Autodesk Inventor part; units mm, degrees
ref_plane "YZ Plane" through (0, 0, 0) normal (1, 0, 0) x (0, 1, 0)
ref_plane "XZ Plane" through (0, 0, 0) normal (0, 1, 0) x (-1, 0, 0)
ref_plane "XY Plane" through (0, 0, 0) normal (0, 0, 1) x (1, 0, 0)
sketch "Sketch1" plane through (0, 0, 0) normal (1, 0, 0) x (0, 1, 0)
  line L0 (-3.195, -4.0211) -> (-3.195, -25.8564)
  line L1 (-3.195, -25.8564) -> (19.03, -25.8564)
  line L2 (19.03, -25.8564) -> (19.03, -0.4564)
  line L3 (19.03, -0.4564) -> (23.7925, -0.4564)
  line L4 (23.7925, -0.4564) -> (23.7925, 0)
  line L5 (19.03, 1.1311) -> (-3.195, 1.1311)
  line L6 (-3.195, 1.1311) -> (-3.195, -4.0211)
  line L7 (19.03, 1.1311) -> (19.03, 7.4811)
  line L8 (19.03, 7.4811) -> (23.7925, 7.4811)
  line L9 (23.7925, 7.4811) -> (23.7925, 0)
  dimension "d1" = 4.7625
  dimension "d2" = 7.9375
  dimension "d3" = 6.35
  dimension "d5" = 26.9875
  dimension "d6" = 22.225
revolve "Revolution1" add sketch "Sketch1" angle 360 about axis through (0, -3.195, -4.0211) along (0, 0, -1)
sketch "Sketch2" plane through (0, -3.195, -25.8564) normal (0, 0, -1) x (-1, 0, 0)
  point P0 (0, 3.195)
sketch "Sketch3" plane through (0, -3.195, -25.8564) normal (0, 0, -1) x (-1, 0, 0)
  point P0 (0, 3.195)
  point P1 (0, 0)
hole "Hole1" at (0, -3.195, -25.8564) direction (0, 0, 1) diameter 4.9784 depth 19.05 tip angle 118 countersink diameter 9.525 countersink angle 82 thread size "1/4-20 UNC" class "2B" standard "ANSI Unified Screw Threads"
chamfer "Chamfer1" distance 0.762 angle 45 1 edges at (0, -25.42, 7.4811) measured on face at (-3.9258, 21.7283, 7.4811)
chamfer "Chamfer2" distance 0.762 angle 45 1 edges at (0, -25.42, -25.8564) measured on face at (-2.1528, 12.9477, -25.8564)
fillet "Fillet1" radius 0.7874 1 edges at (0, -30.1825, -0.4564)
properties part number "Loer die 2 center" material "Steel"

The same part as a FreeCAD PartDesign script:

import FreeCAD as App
import Part
import Sketcher

V = App.Vector
Q = App.Units.Quantity


def edges_at(feature, points):
    """Names of the edges that pass closest to the given points."""
    edges = feature.Shape.Edges
    near = lambda p: min(range(len(edges)), key=lambda i: edges[i].distToShape(Part.Vertex(*p))[0])
    return sorted({f"Edge{near(p) + 1}" for p in points})

doc = App.newDocument("Part")
params = doc.addObject("Spreadsheet::Sheet", "Params")
for row, (alias, value) in enumerate([
    ("sketch1_height", "0.25 in"),
    ("sketch1_width", "0.875 in"),
    ("sketch1_width2", "0.1875 in"),
    ("sketch1_height2", "1.0625 in"),
    ("sketch1_height3", "1 in"),
    ("revolution_angle", "360 deg"),
    ("sketch2_diameter", "0.196 in"),
    ("hole_diameter", "0.196 in"),
    ("hole_depth", "0.75 in"),
    ("hole_csink_diameter", "0.375 in"),
    ("chamfer_size", "0.03 in"),
    ("chamfer2_size", "0.03 in"),
    ("fillet_radius", "0.031 in"),
], start=1):
    params.set(f"A{row}", alias)
    params.set(f"B{row}", "=" + value)
    params.setAlias(f"B{row}", alias)

body = doc.addObject("PartDesign::Body", "Body")

sketch1 = body.newObject("Sketcher::SketchObject", "Sketch")
sketch1.AttachmentSupport = (doc.getObject("YZ_Plane"), [""])
sketch1.MapMode = "FlatFace"
sketch1.addGeometry(Part.LineSegment(V(-3.195, 1.1311, 0), V(-3.195, -25.8564, 0)), False)
sketch1.addGeometry(Part.LineSegment(V(-3.195, -25.8564, 0), V(19.03, -25.8564, 0)), False)
sketch1.addGeometry(Part.LineSegment(V(19.03, -25.8564, 0), V(19.03, -0.4564, 0)), False)
sketch1.addGeometry(Part.LineSegment(V(19.03, -0.4564, 0), V(23.7925, -0.4564, 0)), False)
sketch1.addGeometry(Part.LineSegment(V(23.7925, -0.4564, 0), V(23.7925, 7.4811, 0)), False)
sketch1.addGeometry(Part.LineSegment(V(23.7925, 7.4811, 0), V(19.03, 7.4811, 0)), False)
sketch1.addGeometry(Part.LineSegment(V(19.03, 7.4811, 0), V(19.03, 1.1311, 0)), False)
sketch1.addGeometry(Part.LineSegment(V(19.03, 1.1311, 0), V(-3.195, 1.1311, 0)), False)
sketch1.addGeometry(Part.LineSegment(V(-3.195, 7.4811, 0), V(-3.195, -25.8564, 0)), True)
sketch1.addConstraint(Sketcher.Constraint("Coincident", 0, 2, 1, 1))
sketch1.addConstraint(Sketcher.Constraint("Coincident", 1, 2, 2, 1))
sketch1.addConstraint(Sketcher.Constraint("Coincident", 2, 2, 3, 1))
sketch1.addConstraint(Sketcher.Constraint("Coincident", 3, 2, 4, 1))
sketch1.addConstraint(Sketcher.Constraint("Coincident", 4, 2, 5, 1))
sketch1.addConstraint(Sketcher.Constraint("Coincident", 5, 2, 6, 1))
sketch1.addConstraint(Sketcher.Constraint("Coincident", 6, 2, 7, 1))
sketch1.addConstraint(Sketcher.Constraint("Coincident", 7, 2, 0, 1))
sketch1.addConstraint(Sketcher.Constraint("Vertical", 0))
sketch1.addConstraint(Sketcher.Constraint("Horizontal", 1))
sketch1.addConstraint(Sketcher.Constraint("Vertical", 2))
sketch1.addConstraint(Sketcher.Constraint("Horizontal", 3))
sketch1.addConstraint(Sketcher.Constraint("Vertical", 4))
sketch1.addConstraint(Sketcher.Constraint("Horizontal", 5))
sketch1.addConstraint(Sketcher.Constraint("Vertical", 6))
sketch1.addConstraint(Sketcher.Constraint("Horizontal", 7))
sketch1.addConstraint(Sketcher.Constraint("Vertical", 8))
sketch1.addConstraint(Sketcher.Constraint("Coincident", 8, 2, 0, 2))
sketch1.addConstraint(Sketcher.Constraint("Horizontal", 5, 2, 8, 1))
sketch1.addConstraint(Sketcher.Constraint("Vertical", 2, 2, 5, 2))
sketch1.addConstraint(Sketcher.Constraint("DistanceY", 6, 2, 6, 1, Q("0.25 in")))
sketch1.addConstraint(Sketcher.Constraint("DistanceX", 1, 1, 1, 2, Q("0.875 in")))
sketch1.addConstraint(Sketcher.Constraint("DistanceX", 3, 1, 3, 2, Q("0.1875 in")))
sketch1.addConstraint(Sketcher.Constraint("DistanceY", 0, 2, 0, 1, Q("1.0625 in")))
sketch1.addConstraint(Sketcher.Constraint("DistanceY", 2, 1, 2, 2, Q("1 in")))
sketch1.addConstraint(Sketcher.Constraint("DistanceX", 0, 2, -1, 1, Q("3.195 mm")))
sketch1.addConstraint(Sketcher.Constraint("DistanceY", 0, 2, -1, 1, Q("25.8564 mm")))
sketch1.setExpression("Constraints[20]", "Params.sketch1_height")
sketch1.setExpression("Constraints[21]", "Params.sketch1_width")
sketch1.setExpression("Constraints[22]", "Params.sketch1_width2")
sketch1.setExpression("Constraints[23]", "Params.sketch1_height2")
sketch1.setExpression("Constraints[24]", "Params.sketch1_height3")
revolution = body.newObject("PartDesign::Revolution", "Revolution")
revolution.Profile = sketch1
revolution.ReferenceAxis = (sketch1, ["Axis0"])
revolution.setExpression("Angle", "Params.revolution_angle")

sketch2 = body.newObject("Sketcher::SketchObject", "Sketch001")
sketch2.AttachmentSupport = (doc.getObject("XY_Plane"), [""])
sketch2.MapMode = "FlatFace"
sketch2.AttachmentOffset = App.Placement(V(0, 0, -25.8564), App.Rotation())
sketch2.addGeometry(Part.Circle(V(0, -3.195, 0), V(0, 0, 1), 2.4892), False)
sketch2.addConstraint(Sketcher.Constraint("PointOnObject", 0, 3, -2))
sketch2.addConstraint(Sketcher.Constraint("Diameter", 0, Q("0.196 in")))
sketch2.addConstraint(Sketcher.Constraint("DistanceY", 0, 3, -1, 1, Q("3.195 mm")))
sketch2.setExpression("Constraints[1]", "Params.sketch2_diameter")
doc.recompute()
hole = body.newObject("PartDesign::Hole", "Hole")
hole.Profile = sketch2
hole.ThreadType = "None"
hole.setExpression("Diameter", "Params.hole_diameter")
hole.DepthType = "Dimension"
hole.setExpression("Depth", "Params.hole_depth")
hole.DrillPoint = "Angled"
hole.DrillPointAngle = 118
hole.HoleCutType = "Countersink"
hole.setExpression("HoleCutDiameter", "Params.hole_csink_diameter")
hole.HoleCutCountersinkAngle = 82
hole.Reversed = True
doc.recompute()

chamfer = body.newObject("PartDesign::Chamfer", "Chamfer")
chamfer.Base = (hole, edges_at(hole, [(0, -25.42, 7.481)]))
chamfer.setExpression("Size", "Params.chamfer_size")
doc.recompute()

chamfer2 = body.newObject("PartDesign::Chamfer", "Chamfer001")
chamfer2.Base = (chamfer, edges_at(chamfer, [(0, -25.42, -25.856)]))
chamfer2.setExpression("Size", "Params.chamfer2_size")
doc.recompute()

fillet = body.newObject("PartDesign::Fillet", "Fillet")
fillet.Base = (chamfer2, edges_at(chamfer2, [(0, -30.183, -0.456)]))
fillet.setExpression("Radius", "Params.fillet_radius")

doc.recompute()
